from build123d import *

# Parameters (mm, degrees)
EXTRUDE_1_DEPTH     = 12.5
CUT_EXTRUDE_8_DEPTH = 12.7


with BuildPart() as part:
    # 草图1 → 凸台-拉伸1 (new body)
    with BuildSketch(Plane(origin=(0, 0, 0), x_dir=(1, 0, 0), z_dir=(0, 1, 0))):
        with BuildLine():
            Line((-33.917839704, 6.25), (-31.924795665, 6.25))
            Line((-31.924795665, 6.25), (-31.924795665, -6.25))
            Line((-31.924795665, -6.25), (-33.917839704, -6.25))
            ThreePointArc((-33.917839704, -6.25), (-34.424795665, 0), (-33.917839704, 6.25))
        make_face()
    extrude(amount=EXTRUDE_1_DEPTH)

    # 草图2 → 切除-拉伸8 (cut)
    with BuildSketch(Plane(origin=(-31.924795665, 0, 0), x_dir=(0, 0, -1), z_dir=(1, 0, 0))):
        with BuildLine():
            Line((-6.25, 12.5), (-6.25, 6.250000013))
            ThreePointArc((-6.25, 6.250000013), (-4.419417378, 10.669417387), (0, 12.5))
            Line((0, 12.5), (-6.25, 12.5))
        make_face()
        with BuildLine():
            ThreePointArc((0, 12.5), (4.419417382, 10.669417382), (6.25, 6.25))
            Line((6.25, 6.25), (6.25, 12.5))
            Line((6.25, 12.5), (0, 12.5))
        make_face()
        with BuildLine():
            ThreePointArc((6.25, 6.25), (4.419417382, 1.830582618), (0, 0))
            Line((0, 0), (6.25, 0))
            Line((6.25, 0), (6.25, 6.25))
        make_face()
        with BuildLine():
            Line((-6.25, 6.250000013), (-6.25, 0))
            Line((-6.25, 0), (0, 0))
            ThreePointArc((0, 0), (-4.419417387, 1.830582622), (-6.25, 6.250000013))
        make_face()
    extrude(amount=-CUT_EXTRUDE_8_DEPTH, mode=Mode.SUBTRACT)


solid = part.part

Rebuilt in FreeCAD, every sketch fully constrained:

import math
import FreeCAD as App
import Part
import Sketcher

V = App.Vector
Q = App.Units.Quantity

doc = App.newDocument("Part")
body = doc.addObject("PartDesign::Body", "Body")

# Sketch on XZ plane
sketch1 = body.newObject("Sketcher::SketchObject", "Sketch")
sketch1.AttachmentSupport = (doc.getObject("XZ_Plane"), [""])
sketch1.MapMode = "FlatFace"
sketch1.addGeometry([
    Part.LineSegment(V(-31.9, -6.2, 0), V(-33.9, -6.2, 0)),
    Part.ArcOfCircle(Part.Circle(V(4.4, 0, 0), V(0, 0, 1), 38.8), math.radians(170.73), math.radians(189.27)),
    Part.LineSegment(V(-33.9, 6.2, 0), V(-31.9, 6.2, 0)),
    Part.LineSegment(V(-31.9, 6.2, 0), V(-31.9, -6.2, 0)),
], False)
sketch1.addConstraint([
    Sketcher.Constraint("Coincident", 0, 2, 1, 2),
    Sketcher.Constraint("Coincident", 1, 1, 2, 1),
    Sketcher.Constraint("Coincident", 2, 2, 3, 1),
    Sketcher.Constraint("Coincident", 3, 2, 0, 1),
    Sketcher.Constraint("Horizontal", 0),
    Sketcher.Constraint("Horizontal", 2),
    Sketcher.Constraint("Vertical", 3),
    Sketcher.Constraint("Symmetric", 0, 2, 1, 1, -1),
    Sketcher.Constraint("Radius", 1, Q("38.78 mm")),
    Sketcher.Constraint("DistanceY", 3, 2, 3, 1, Q("12.5 mm")),
    Sketcher.Constraint("DistanceX", 2, 2, 1, 3, Q("36.28 mm")),
    Sketcher.Constraint("DistanceX", 0, 2, -1, 1, Q("33.91784 mm")),
])
pad1 = body.newObject("PartDesign::Pad", "Pad")
pad1.Profile = sketch1
pad1.Length = 12.5
pad1.Reversed = True

# Sketch on YZ plane
sketch2 = body.newObject("Sketcher::SketchObject", "Sketch001")
sketch2.AttachmentSupport = (doc.getObject("YZ_Plane"), [""])
sketch2.MapMode = "FlatFace"
sketch2.AttachmentOffset = App.Placement(V(0, 0, -31.924796), App.Rotation())
sketch2.addGeometry([
    Part.LineSegment(V(12, 6, 0), V(6, 6, 0)),  # 0
    Part.ArcOfCircle(Part.Circle(V(6, 0, 0), V(0, 0, 1), 6), math.radians(0), math.radians(90)),  # 1
    Part.LineSegment(V(12, 0, 0), V(12, 6, 0)),  # 2
    Part.ArcOfCircle(Part.Circle(V(6, 0, 0), V(0, 0, 1), 6), math.radians(-90), math.radians(0)),  # 3
    Part.LineSegment(V(6, -6, 0), V(12, -6, 0)),  # 4
    Part.LineSegment(V(12, -6, 0), V(12, 0, 0)),  # 5
    Part.ArcOfCircle(Part.Circle(V(6, 0, 0), V(0, 0, 1), 6), math.radians(-180), math.radians(-90)),  # 6
    Part.LineSegment(V(0, 0, 0), V(0, -6, 0)),  # 7
    Part.LineSegment(V(0, -6, 0), V(6, -6, 0)),  # 8
    Part.LineSegment(V(6, 6, 0), V(0, 6, 0)),  # 9
    Part.LineSegment(V(0, 6, 0), V(0, 0, 0)),  # 10
    Part.ArcOfCircle(Part.Circle(V(6, 0, 0), V(0, 0, 1), 6), math.radians(90), math.radians(180)),  # 11
], False)
sketch2.addConstraint([
    Sketcher.Constraint("Tangent", 0, 2, 1, 2),
    Sketcher.Constraint("Tangent", 1, 1, 2, 1),
    Sketcher.Constraint("Coincident", 2, 2, 0, 1),
    Sketcher.Constraint("Tangent", 3, 1, 4, 1),
    Sketcher.Constraint("Coincident", 4, 2, 5, 1),
    Sketcher.Constraint("Tangent", 5, 2, 3, 2),
    Sketcher.Constraint("Tangent", 6, 1, 7, 1),
    Sketcher.Constraint("Coincident", 7, 2, 8, 1),
    Sketcher.Constraint("Tangent", 8, 2, 6, 2),
    Sketcher.Constraint("Coincident", 9, 2, 10, 1),
    Sketcher.Constraint("Tangent", 10, 2, 11, 2),
    Sketcher.Constraint("Tangent", 11, 1, 9, 1),
    Sketcher.Constraint("Horizontal", 0),
    Sketcher.Constraint("Vertical", 2),
    Sketcher.Constraint("Horizontal", 4),
    Sketcher.Constraint("Vertical", 5),
    Sketcher.Constraint("Vertical", 7),
    Sketcher.Constraint("Horizontal", 8),
    Sketcher.Constraint("Horizontal", 9),
    Sketcher.Constraint("Vertical", 10),
    Sketcher.Constraint("Coincident", 6, 1, -1, 1),
    Sketcher.Constraint("Coincident", 10, 2, -1, 1),
    Sketcher.Constraint("Coincident", 3, 3, 1, 3),
    Sketcher.Constraint("Coincident", 6, 3, 1, 3),
    Sketcher.Constraint("Coincident", 11, 1, 0, 2),
    Sketcher.Constraint("Equal", 1, 3),
    Sketcher.Constraint("Radius", 1, Q("6.25 mm")),
])
pocket1 = body.newObject("PartDesign::Pocket", "Pocket")
pocket1.Profile = sketch2
pocket1.Length = 12.7

doc.recompute()
